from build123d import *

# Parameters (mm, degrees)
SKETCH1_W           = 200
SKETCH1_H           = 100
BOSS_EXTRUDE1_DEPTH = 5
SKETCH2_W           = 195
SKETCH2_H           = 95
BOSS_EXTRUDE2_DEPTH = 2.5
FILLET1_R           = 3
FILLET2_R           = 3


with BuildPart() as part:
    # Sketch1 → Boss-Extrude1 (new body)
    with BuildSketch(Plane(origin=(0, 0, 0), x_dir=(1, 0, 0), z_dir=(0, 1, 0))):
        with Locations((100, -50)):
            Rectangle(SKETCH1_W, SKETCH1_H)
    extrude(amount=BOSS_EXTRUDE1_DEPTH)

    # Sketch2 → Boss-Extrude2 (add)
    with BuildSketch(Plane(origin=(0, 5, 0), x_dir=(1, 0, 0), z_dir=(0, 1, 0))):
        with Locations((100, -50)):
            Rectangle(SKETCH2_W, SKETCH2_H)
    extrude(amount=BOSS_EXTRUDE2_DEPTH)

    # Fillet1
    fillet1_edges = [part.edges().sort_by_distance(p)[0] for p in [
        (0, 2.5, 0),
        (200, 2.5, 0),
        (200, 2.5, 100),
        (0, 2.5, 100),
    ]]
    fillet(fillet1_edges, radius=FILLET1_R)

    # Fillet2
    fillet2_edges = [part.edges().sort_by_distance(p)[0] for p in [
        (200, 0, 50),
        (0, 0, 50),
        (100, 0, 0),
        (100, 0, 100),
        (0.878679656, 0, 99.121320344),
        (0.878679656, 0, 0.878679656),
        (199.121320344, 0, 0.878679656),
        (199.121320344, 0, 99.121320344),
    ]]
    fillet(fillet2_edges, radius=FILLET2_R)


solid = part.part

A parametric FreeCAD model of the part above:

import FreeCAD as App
import Part
import Sketcher
Q = App.Units.Quantity


def edges_at(feature, points):
    """Names of the edges that pass closest to the given points."""
    edges = feature.Shape.Edges
    near = lambda p: min(range(len(edges)), key=lambda i: edges[i].distToShape(Part.Vertex(*p))[0])
    return sorted({f"Edge{near(p) + 1}" for p in points})


def add_polygon(sketch, points):
    """Adds a closed chain of lines whose ends are joined by coincident constraints."""
    first, n = sketch.GeometryCount, len(points)
    for a, b in zip(points, points[1:] + points[:1]):
        sketch.addGeometry(Part.LineSegment(App.Vector(*a, 0), App.Vector(*b, 0)), False)
    for i in range(n):
        sketch.addConstraint(Sketcher.Constraint("Coincident", first + i, 2, first + (i + 1) % n, 1))

doc = App.newDocument("Part")
params = doc.addObject("Spreadsheet::Sheet", "Params")
for row, (alias, value) in enumerate([
    ("sketch1_width", "200 mm"),
    ("sketch1_height", "100 mm"),
    ("pad1_length", "5 mm"),
    ("sketch2_width", "195 mm"),
    ("sketch2_height", "95 mm"),
    ("pad2_length", "2.5 mm"),
    ("fillet_radius", "3 mm"),
    ("fillet2_radius", "3 mm"),
], start=1):
    params.set(f"A{row}", alias)
    params.set(f"B{row}", "=" + value)
    params.setAlias(f"B{row}", alias)

body = doc.addObject("PartDesign::Body", "Body")

sketch1 = doc.addObject("Sketcher::SketchObject", "Sketch")
body.addObject(sketch1)
sketch1.AttachmentSupport = (doc.XZ_Plane, [""])
sketch1.MapMode = "FlatFace"
add_polygon(sketch1, [(0, 0), (0, 100), (200, 100), (200, 0)])
sketch1.addConstraint(Sketcher.Constraint("Vertical", 0))
sketch1.addConstraint(Sketcher.Constraint("Horizontal", 1))
sketch1.addConstraint(Sketcher.Constraint("Vertical", 2))
sketch1.addConstraint(Sketcher.Constraint("Horizontal", 3))
sketch1.addConstraint(Sketcher.Constraint("Coincident", 3, 2, -1, 1))
sketch1.addConstraint(Sketcher.Constraint("DistanceX", 1, 1, 1, 2, Q("200 mm")))
sketch1.addConstraint(Sketcher.Constraint("DistanceY", 0, 1, 0, 2, Q("100 mm")))
sketch1.setExpression("Constraints[9]", "Params.sketch1_width")
sketch1.setExpression("Constraints[10]", "Params.sketch1_height")
pad1 = doc.addObject("PartDesign::Pad", "Pad")
body.addObject(pad1)
pad1.Profile = sketch1
pad1.setExpression("Length", "Params.pad1_length")
pad1.Reversed = True

sketch2 = doc.addObject("Sketcher::SketchObject", "Sketch001")
body.addObject(sketch2)
sketch2.AttachmentSupport = (doc.XZ_Plane, [""])
sketch2.MapMode = "FlatFace"
sketch2.AttachmentOffset = App.Placement(App.Vector(0, 0, -5), App.Rotation())
add_polygon(sketch2, [(2, 2), (2, 98), (198, 98), (198, 2)])
sketch2.addConstraint(Sketcher.Constraint("Vertical", 0))
sketch2.addConstraint(Sketcher.Constraint("Horizontal", 1))
sketch2.addConstraint(Sketcher.Constraint("Vertical", 2))
sketch2.addConstraint(Sketcher.Constraint("Horizontal", 3))
sketch2.addConstraint(Sketcher.Constraint("DistanceX", 1, 1, 1, 2, Q("195 mm")))
sketch2.addConstraint(Sketcher.Constraint("DistanceY", 0, 1, 0, 2, Q("95 mm")))
sketch2.addConstraint(Sketcher.Constraint("DistanceX", -1, 1, 0, 2, Q("2.5 mm")))
sketch2.addConstraint(Sketcher.Constraint("DistanceY", -1, 1, 0, 2, Q("97.5 mm")))
sketch2.setExpression("Constraints[8]", "Params.sketch2_width")
sketch2.setExpression("Constraints[9]", "Params.sketch2_height")
pad2 = doc.addObject("PartDesign::Pad", "Pad001")
body.addObject(pad2)
pad2.Profile = sketch2
pad2.setExpression("Length", "Params.pad2_length")
pad2.Reversed = True
doc.recompute()

fillet = doc.addObject("PartDesign::Fillet", "Fillet")
body.addObject(fillet)
fillet.Base = (pad2, edges_at(pad2, [
    (0, 2.5, 0),
    (200, 2.5, 0),
    (200, 2.5, 100),
    (0, 2.5, 100),
]))
fillet.setExpression("Radius", "Params.fillet_radius")
doc.recompute()

fillet2 = doc.addObject("PartDesign::Fillet", "Fillet001")
body.addObject(fillet2)
fillet2.Base = (fillet, edges_at(fillet, [
    (200, 0, 50),
    (0, 0, 50),
    (100, 0, 0),
    (100, 0, 100),
    (0.879, 0, 99.121),
    (0.879, 0, 0.879),
    (199.121, 0, 0.879),
    (199.121, 0, 99.121),
]))
fillet2.setExpression("Radius", "Params.fillet2_radius")

doc.recompute()
